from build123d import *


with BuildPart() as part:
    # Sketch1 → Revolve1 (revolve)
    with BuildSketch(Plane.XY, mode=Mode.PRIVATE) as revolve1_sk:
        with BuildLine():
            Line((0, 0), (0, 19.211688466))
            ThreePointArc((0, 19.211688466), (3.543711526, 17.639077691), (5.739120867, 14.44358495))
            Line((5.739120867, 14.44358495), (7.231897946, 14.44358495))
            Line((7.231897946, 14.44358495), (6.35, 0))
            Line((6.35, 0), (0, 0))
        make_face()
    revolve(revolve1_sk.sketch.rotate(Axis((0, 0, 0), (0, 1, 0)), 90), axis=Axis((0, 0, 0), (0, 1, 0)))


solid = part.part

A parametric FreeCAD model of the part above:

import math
import FreeCAD as App
import Part
import Sketcher

V = App.Vector
Q = App.Units.Quantity

doc = App.newDocument("Part")
body = doc.addObject("PartDesign::Body", "Body")

# Sketch on XY plane
sketch1 = body.newObject("Sketcher::SketchObject", "Sketch")
sketch1.AttachmentSupport = (doc.getObject("XY_Plane"), [""])
sketch1.MapMode = "FlatFace"
sketch1.addGeometry([
    Part.LineSegment(V(0, 19.2, 0), V(0, 0, 0)),  # 0
    Part.LineSegment(V(0, 0, 0), V(6.3, 0, 0)),  # 1
    Part.LineSegment(V(6.3, 0, 0), V(7.2, 14.4, 0)),  # 2
    Part.LineSegment(V(7.2, 14.4, 0), V(5.7, 14.4, 0)),  # 3
    Part.ArcOfCircle(Part.Circle(V(-1, 12.2, 0), V(0, 0, 1), 7.1), math.radians(19), math.radians(82)),  # 4
], False)
sketch1.addConstraint([
    Sketcher.Constraint("Coincident", 0, 2, 1, 1),
    Sketcher.Constraint("Coincident", 1, 2, 2, 1),
    Sketcher.Constraint("Coincident", 2, 2, 3, 1),
    Sketcher.Constraint("Coincident", 3, 2, 4, 1),
    Sketcher.Constraint("Coincident", 4, 2, 0, 1),
    Sketcher.Constraint("Vertical", 0),
    Sketcher.Constraint("Horizontal", 1),
    Sketcher.Constraint("Horizontal", 3),
    Sketcher.Constraint("Coincident", 0, 2, -1, 1),
    Sketcher.Constraint("DistanceX", 1, 1, 1, 2, Q("0.25 in")),
    Sketcher.Constraint("Radius", 4, 7.124043),
    Sketcher.Constraint("DistanceY", 0, 2, 0, 1, 19.211688),
    Sketcher.Constraint("DistanceX", 3, 2, 3, 1, 1.492777),
    Sketcher.Constraint("DistanceX", -1, 1, 3, 2, 5.739121),
    Sketcher.Constraint("DistanceY", 4, 3, 2, 2, 2.28415),
])
revolution = body.newObject("PartDesign::Revolution", "Revolution")
revolution.Profile = sketch1
revolution.ReferenceAxis = (sketch1, ["V_Axis"])
revolution.Angle = 360

doc.recompute()
